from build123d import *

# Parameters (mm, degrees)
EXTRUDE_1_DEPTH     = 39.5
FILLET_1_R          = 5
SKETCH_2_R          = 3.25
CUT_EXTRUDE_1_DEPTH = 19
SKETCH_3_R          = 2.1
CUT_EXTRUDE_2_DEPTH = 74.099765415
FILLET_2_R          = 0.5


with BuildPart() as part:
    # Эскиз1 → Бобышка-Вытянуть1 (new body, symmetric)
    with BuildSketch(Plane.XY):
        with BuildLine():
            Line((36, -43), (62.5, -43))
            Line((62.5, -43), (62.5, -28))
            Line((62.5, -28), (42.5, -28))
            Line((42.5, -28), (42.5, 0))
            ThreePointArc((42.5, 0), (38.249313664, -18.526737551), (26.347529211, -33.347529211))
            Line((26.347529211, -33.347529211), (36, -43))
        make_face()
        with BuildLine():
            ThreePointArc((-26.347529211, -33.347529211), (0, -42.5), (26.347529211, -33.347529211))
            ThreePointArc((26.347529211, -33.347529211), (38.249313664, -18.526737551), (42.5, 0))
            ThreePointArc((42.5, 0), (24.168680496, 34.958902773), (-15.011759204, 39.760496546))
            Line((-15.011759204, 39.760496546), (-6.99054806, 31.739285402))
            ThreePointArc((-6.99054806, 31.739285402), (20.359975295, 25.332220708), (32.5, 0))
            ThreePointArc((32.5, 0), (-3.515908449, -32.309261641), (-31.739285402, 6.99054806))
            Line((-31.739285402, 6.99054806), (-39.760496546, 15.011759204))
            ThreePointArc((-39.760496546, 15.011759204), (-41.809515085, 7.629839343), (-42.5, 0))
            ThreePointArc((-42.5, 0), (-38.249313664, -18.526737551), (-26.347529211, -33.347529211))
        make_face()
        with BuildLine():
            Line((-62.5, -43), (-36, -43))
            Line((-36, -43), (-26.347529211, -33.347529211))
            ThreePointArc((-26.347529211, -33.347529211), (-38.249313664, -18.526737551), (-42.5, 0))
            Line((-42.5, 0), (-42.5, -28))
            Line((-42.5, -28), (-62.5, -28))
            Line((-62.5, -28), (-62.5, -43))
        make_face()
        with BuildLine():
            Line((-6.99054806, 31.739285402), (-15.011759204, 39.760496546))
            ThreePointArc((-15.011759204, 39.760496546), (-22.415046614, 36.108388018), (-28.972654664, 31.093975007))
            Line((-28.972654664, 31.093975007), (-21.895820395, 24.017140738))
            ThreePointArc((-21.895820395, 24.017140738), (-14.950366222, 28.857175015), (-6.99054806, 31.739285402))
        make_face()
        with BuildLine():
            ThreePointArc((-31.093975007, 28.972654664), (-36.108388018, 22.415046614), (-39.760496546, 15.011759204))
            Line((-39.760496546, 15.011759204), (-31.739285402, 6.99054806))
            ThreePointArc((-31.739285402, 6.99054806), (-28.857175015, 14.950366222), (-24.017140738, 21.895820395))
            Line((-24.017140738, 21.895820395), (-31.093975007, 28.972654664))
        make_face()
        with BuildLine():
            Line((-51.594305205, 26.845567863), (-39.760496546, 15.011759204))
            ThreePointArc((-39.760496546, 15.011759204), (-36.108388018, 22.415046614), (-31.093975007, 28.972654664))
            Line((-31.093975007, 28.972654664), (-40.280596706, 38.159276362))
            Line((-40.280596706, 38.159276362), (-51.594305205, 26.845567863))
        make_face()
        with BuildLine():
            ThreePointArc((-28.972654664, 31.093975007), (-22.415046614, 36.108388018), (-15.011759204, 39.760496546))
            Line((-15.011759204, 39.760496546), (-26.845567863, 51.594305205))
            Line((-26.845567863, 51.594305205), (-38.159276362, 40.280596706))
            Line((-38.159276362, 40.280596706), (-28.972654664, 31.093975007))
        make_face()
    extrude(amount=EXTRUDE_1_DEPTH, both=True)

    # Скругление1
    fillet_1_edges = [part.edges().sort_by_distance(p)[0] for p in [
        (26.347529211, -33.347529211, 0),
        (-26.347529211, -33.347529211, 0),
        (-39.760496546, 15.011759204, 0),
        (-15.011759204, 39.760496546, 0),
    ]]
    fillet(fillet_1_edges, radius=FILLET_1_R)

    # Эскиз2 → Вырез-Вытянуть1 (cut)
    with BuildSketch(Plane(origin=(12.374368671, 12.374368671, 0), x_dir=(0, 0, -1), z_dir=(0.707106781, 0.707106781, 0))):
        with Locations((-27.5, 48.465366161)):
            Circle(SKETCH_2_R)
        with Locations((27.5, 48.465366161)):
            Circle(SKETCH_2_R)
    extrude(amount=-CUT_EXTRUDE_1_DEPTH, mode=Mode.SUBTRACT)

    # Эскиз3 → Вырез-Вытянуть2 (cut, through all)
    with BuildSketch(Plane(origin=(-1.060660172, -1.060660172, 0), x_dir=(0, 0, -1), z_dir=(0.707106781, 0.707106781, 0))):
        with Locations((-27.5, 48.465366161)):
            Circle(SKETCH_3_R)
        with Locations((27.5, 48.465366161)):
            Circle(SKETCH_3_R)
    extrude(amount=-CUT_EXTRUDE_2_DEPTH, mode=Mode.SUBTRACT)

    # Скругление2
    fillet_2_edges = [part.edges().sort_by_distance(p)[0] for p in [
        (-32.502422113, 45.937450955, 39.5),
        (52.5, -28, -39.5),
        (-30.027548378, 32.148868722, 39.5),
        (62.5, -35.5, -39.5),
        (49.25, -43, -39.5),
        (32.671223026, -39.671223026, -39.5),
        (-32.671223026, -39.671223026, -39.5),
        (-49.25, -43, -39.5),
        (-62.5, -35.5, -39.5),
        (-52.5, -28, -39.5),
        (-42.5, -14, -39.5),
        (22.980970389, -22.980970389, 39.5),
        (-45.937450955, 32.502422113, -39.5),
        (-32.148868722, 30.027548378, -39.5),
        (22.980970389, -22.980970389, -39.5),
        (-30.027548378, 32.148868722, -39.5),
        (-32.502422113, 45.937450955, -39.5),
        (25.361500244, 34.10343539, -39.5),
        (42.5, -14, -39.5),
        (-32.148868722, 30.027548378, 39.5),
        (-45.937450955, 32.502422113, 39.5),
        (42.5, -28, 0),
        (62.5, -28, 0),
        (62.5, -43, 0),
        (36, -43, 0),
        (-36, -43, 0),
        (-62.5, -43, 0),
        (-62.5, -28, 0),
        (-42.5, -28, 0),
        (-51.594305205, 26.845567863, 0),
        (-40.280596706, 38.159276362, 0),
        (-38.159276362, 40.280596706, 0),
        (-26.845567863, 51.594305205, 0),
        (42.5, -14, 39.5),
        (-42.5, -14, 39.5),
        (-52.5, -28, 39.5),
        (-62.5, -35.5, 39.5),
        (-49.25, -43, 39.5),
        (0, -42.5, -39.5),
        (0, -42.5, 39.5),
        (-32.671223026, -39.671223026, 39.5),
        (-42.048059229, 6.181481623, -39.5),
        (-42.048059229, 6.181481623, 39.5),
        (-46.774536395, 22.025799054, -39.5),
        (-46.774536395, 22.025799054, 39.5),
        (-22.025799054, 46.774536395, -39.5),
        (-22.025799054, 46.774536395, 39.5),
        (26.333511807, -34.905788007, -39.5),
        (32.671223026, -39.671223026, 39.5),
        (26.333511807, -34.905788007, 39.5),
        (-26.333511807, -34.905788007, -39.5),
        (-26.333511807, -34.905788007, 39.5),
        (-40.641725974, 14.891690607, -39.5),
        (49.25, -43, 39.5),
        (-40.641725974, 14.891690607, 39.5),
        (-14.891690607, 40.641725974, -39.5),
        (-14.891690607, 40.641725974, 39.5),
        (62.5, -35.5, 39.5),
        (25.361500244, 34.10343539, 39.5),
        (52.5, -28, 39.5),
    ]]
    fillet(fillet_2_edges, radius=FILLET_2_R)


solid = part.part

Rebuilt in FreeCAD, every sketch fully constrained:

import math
import FreeCAD as App
import Part
import Sketcher

V = App.Vector
Q = App.Units.Quantity


def edges_at(feature, points):
    """Names of the edges that pass closest to the given points."""
    edges = feature.Shape.Edges
    near = lambda p: min(range(len(edges)), key=lambda i: edges[i].distToShape(Part.Vertex(*p))[0])
    return sorted({f"Edge{near(p) + 1}" for p in points})

doc = App.newDocument("Part")
params = doc.addObject("Spreadsheet::Sheet", "Params")
for row, (alias, value) in enumerate([
    ("sketch1_radius", "42.5 mm"),
    ("sketch1_radius2", "32.5 mm"),
    ("sketch1_width", "20 mm"),
    ("sketch1_height", "15 mm"),
    ("sketch1_height2", "28 mm"),
    ("pad1_length", "79 mm"),
    ("fillet_radius", "5 mm"),
    ("sketch2_diameter", "6.5 mm"),
    ("pocket1_length", "19 mm"),
    ("sketch3_diameter", "4.2 mm"),
    ("fillet2_radius", "0.5 mm"),
], start=1):
    params.set(f"A{row}", alias)
    params.set(f"B{row}", "=" + value)
    params.setAlias(f"B{row}", alias)

body = doc.addObject("PartDesign::Body", "Body")

sketch1 = body.newObject("Sketcher::SketchObject", "Sketch")
sketch1.AttachmentSupport = (doc.getObject("XY_Plane"), [""])
sketch1.MapMode = "FlatFace"
sketch1.addGeometry(Part.LineSegment(V(36, -43, 0), V(62, -43, 0)), False)
sketch1.addGeometry(Part.LineSegment(V(62, -43, 0), V(62, -28, 0)), False)
sketch1.addGeometry(Part.LineSegment(V(62, -28, 0), V(42, -28, 0)), False)
sketch1.addGeometry(Part.LineSegment(V(42, -28, 0), V(42, 0, 0)), False)
sketch1.addGeometry(Part.ArcOfCircle(Part.Circle(V(0, 0, 0), V(0, 0, 1), 42), math.radians(0), math.radians(111)), False)
sketch1.addGeometry(Part.LineSegment(V(-15, 40, 0), V(-27, 52, 0)), False)
sketch1.addGeometry(Part.LineSegment(V(-27, 52, 0), V(-38, 40, 0)), False)
sketch1.addGeometry(Part.LineSegment(V(-38, 40, 0), V(-29, 31, 0)), False)
sketch1.addGeometry(Part.LineSegment(V(-29, 31, 0), V(-22, 24, 0)), False)
sketch1.addGeometry(Part.ArcOfCircle(Part.Circle(V(0, 0, 0), V(0, 0, 1), 32), math.radians(102), math.radians(132)), False)
sketch1.addGeometry(Part.ArcOfCircle(Part.Circle(V(0, 0, 0), V(0, 0, 1), 32), math.radians(0), math.radians(102)), False)
sketch1.addGeometry(Part.ArcOfCircle(Part.Circle(V(0, 0, 0), V(0, 0, 1), 32), math.radians(168), math.radians(360)), False)
sketch1.addGeometry(Part.ArcOfCircle(Part.Circle(V(0, 0, 0), V(0, 0, 1), 32), math.radians(138), math.radians(168)), False)
sketch1.addGeometry(Part.LineSegment(V(-24, 22, 0), V(-31, 29, 0)), False)
sketch1.addGeometry(Part.LineSegment(V(-31, 29, 0), V(-40, 38, 0)), False)
sketch1.addGeometry(Part.LineSegment(V(-40, 38, 0), V(-52, 27, 0)), False)
sketch1.addGeometry(Part.LineSegment(V(-52, 27, 0), V(-40, 15, 0)), False)
sketch1.addGeometry(Part.ArcOfCircle(Part.Circle(V(0, 0, 0), V(0, 0, 1), 42), math.radians(159), math.radians(180)), False)
sketch1.addGeometry(Part.LineSegment(V(-42, 0, 0), V(-42, -28, 0)), False)
sketch1.addGeometry(Part.LineSegment(V(-42, -28, 0), V(-62, -28, 0)), False)
sketch1.addGeometry(Part.LineSegment(V(-62, -28, 0), V(-62, -43, 0)), False)
sketch1.addGeometry(Part.LineSegment(V(-62, -43, 0), V(-36, -43, 0)), False)
sketch1.addGeometry(Part.LineSegment(V(-36, -43, 0), V(-26, -33, 0)), False)
sketch1.addGeometry(Part.ArcOfCircle(Part.Circle(V(0, 0, 0), V(0, 0, 1), 42), math.radians(-128), math.radians(-52)), False)
sketch1.addGeometry(Part.LineSegment(V(26, -33, 0), V(36, -43, 0)), False)
sketch1.addConstraint(Sketcher.Constraint("Coincident", 0, 2, 1, 1))
sketch1.addConstraint(Sketcher.Constraint("Coincident", 1, 2, 2, 1))
sketch1.addConstraint(Sketcher.Constraint("Coincident", 2, 2, 3, 1))
sketch1.addConstraint(Sketcher.Constraint("Tangent", 3, 2, 4, 1))
sketch1.addConstraint(Sketcher.Constraint("Coincident", 4, 2, 5, 1))
sketch1.addConstraint(Sketcher.Constraint("Coincident", 5, 2, 6, 1))
sketch1.addConstraint(Sketcher.Constraint("Coincident", 6, 2, 7, 1))
sketch1.addConstraint(Sketcher.Constraint("Coincident", 7, 2, 8, 1))
sketch1.addConstraint(Sketcher.Constraint("Coincident", 8, 2, 9, 2))
sketch1.addConstraint(Sketcher.Constraint("Tangent", 9, 1, 10, 2))
sketch1.addConstraint(Sketcher.Constraint("Tangent", 10, 1, 11, 2))
sketch1.addConstraint(Sketcher.Constraint("Tangent", 11, 1, 12, 2))
sketch1.addConstraint(Sketcher.Constraint("Coincident", 12, 1, 13, 1))
sketch1.addConstraint(Sketcher.Constraint("Coincident", 13, 2, 14, 1))
sketch1.addConstraint(Sketcher.Constraint("Coincident", 14, 2, 15, 1))
sketch1.addConstraint(Sketcher.Constraint("Coincident", 15, 2, 16, 1))
sketch1.addConstraint(Sketcher.Constraint("Coincident", 16, 2, 17, 1))
sketch1.addConstraint(Sketcher.Constraint("Tangent", 17, 2, 18, 1))
sketch1.addConstraint(Sketcher.Constraint("Coincident", 18, 2, 19, 1))
sketch1.addConstraint(Sketcher.Constraint("Coincident", 19, 2, 20, 1))
sketch1.addConstraint(Sketcher.Constraint("Coincident", 20, 2, 21, 1))
sketch1.addConstraint(Sketcher.Constraint("Coincident", 21, 2, 22, 1))
sketch1.addConstraint(Sketcher.Constraint("Coincident", 22, 2, 23, 1))
sketch1.addConstraint(Sketcher.Constraint("Coincident", 23, 2, 24, 1))
sketch1.addConstraint(Sketcher.Constraint("Coincident", 24, 2, 0, 1))
sketch1.addConstraint(Sketcher.Constraint("Horizontal", 0))
sketch1.addConstraint(Sketcher.Constraint("Vertical", 1))
sketch1.addConstraint(Sketcher.Constraint("Horizontal", 2))
sketch1.addConstraint(Sketcher.Constraint("Vertical", 3))
sketch1.addConstraint(Sketcher.Constraint("Vertical", 18))
sketch1.addConstraint(Sketcher.Constraint("Horizontal", 19))
sketch1.addConstraint(Sketcher.Constraint("Vertical", 20))
sketch1.addConstraint(Sketcher.Constraint("Horizontal", 21))
sketch1.addConstraint(Sketcher.Constraint("Coincident", 4, 3, -1, 1))
sketch1.addConstraint(Sketcher.Constraint("Coincident", 9, 3, -1, 1))
sketch1.addConstraint(Sketcher.Constraint("Coincident", 11, 3, -1, 1))
sketch1.addConstraint(Sketcher.Constraint("Coincident", 17, 3, -1, 1))
sketch1.addConstraint(Sketcher.Constraint("Coincident", 23, 3, -1, 1))
sketch1.addConstraint(Sketcher.Constraint("Equal", 11, 12))
sketch1.addConstraint(Sketcher.Constraint("Equal", 4, 17))
sketch1.addConstraint(Sketcher.Constraint("Equal", 17, 23))
sketch1.addConstraint(Sketcher.Constraint("Symmetric", 1, 2, 19, 2, -2))
sketch1.addConstraint(Sketcher.Constraint("Symmetric", 21, 2, 24, 2, -2))
sketch1.addConstraint(Sketcher.Constraint("PointOnObject", 10, 1, -1))
sketch1.addConstraint(Sketcher.Constraint("Perpendicular", 5, 6))
sketch1.addConstraint(Sketcher.Constraint("Perpendicular", 6, 7))
sketch1.addConstraint(Sketcher.Constraint("Parallel", 7, 8))
sketch1.addConstraint(Sketcher.Constraint("Parallel", 8, 13))
sketch1.addConstraint(Sketcher.Constraint("Parallel", 13, 14))
sketch1.addConstraint(Sketcher.Constraint("Perpendicular", 14, 15))
sketch1.addConstraint(Sketcher.Constraint("Perpendicular", 15, 16))
sketch1.addConstraint(Sketcher.Constraint("Perpendicular", 16, 22))
sketch1.addConstraint(Sketcher.Constraint("Perpendicular", 22, 24))
sketch1.addConstraint(Sketcher.Constraint("Horizontal", 22, 2, 23, 2))
sketch1.addConstraint(Sketcher.Constraint("Equal", 8, 13))
sketch1.addConstraint(Sketcher.Constraint("Equal", 7, 14))
sketch1.addConstraint(Sketcher.Constraint("Equal", 6, 15))
sketch1.addConstraint(Sketcher.Constraint("Equal", 5, 16))
sketch1.addConstraint(Sketcher.Constraint("Radius", 4, Q("42.5 mm")))
sketch1.addConstraint(Sketcher.Constraint("Radius", 9, Q("32.5 mm")))
sketch1.addConstraint(Sketcher.Constraint("DistanceX", 2, 2, 2, 1, Q("20 mm")))
sketch1.addConstraint(Sketcher.Constraint("DistanceY", 1, 1, 1, 2, Q("15 mm")))
sketch1.addConstraint(Sketcher.Constraint("DistanceY", 3, 1, 3, 2, Q("28 mm")))
sketch1.addConstraint(Sketcher.Constraint("Distance", 6, Q("16 mm")))
sketch1.addConstraint(Sketcher.Constraint("DistanceX", 0, 1, 0, 2, Q("26.5 mm")))
sketch1.addConstraint(Sketcher.Constraint("DistanceY", 4, 2, 6, 2, Q("0.5201 mm")))
sketch1.addConstraint(Sketcher.Constraint("DistanceX", 6, 2, 13, 2, Q("7.065301 mm")))
sketch1.addConstraint(Sketcher.Constraint("DistanceX", 4, 2, -1, 1, Q("15.011759 mm")))
sketch1.addConstraint(Sketcher.Constraint("DistanceX", 9, 1, -1, 1, Q("6.990548 mm")))
sketch1.addConstraint(Sketcher.Constraint("DistanceY", -1, 1, 11, 1, Q("6.990548 mm")))
sketch1.setExpression("Constraints[58]", "Params.sketch1_radius")
sketch1.setExpression("Constraints[59]", "Params.sketch1_radius2")
sketch1.setExpression("Constraints[60]", "Params.sketch1_width")
sketch1.setExpression("Constraints[61]", "Params.sketch1_height")
sketch1.setExpression("Constraints[62]", "Params.sketch1_height2")
pad1 = body.newObject("PartDesign::Pad", "Pad")
pad1.Profile = sketch1
pad1.setExpression("Length", "Params.pad1_length")
pad1.Midplane = True
doc.recompute()

fillet = body.newObject("PartDesign::Fillet", "Fillet")
fillet.Base = (pad1, edges_at(pad1, [
    (26.348, -33.348, 0),
    (-26.348, -33.348, 0),
    (-39.76, 15.012, 0),
    (-15.012, 39.76, 0),
]))
fillet.setExpression("Radius", "Params.fillet_radius")

sketch2 = body.newObject("Sketcher::SketchObject", "Sketch001")
sketch2.Placement = App.Placement(V(12.374369, 12.374369, 0), App.Rotation(V(0, 0, -1), V(-0.707106781, 0.707106781, 0), V(0.707106781, 0.707106781, 0), "ZXY"))
sketch2.addGeometry(Part.Circle(V(-27.5, 48.5, 0), V(0, 0, 1), 3.2), False)
sketch2.addGeometry(Part.Circle(V(27.5, 48.5, 0), V(0, 0, 1), 3.2), False)
sketch2.addConstraint(Sketcher.Constraint("Equal", 0, 1))
sketch2.addConstraint(Sketcher.Constraint("Symmetric", 0, 3, 1, 3, -2))
sketch2.addConstraint(Sketcher.Constraint("Diameter", 0, Q("6.5 mm")))
sketch2.addConstraint(Sketcher.Constraint("DistanceX", 0, 3, 1, 3, Q("55 mm")))
sketch2.addConstraint(Sketcher.Constraint("DistanceY", -1, 1, 0, 3, Q("48.465366 mm")))
sketch2.setExpression("Constraints[2]", "Params.sketch2_diameter")
pocket1 = body.newObject("PartDesign::Pocket", "Pocket")
pocket1.Profile = sketch2
pocket1.setExpression("Length", "Params.pocket1_length")

sketch3 = body.newObject("Sketcher::SketchObject", "Sketch002")
sketch3.Placement = App.Placement(V(-1.06066, -1.06066, 0), App.Rotation(V(0, 0, -1), V(-0.707106781, 0.707106781, 0), V(0.707106781, 0.707106781, 0), "ZXY"))
sketch3.addGeometry(Part.Circle(V(-27.5, 48.5, 0), V(0, 0, 1), 2.1), False)
sketch3.addGeometry(Part.Circle(V(27.5, 48.5, 0), V(0, 0, 1), 2.1), False)
sketch3.addConstraint(Sketcher.Constraint("Equal", 0, 1))
sketch3.addConstraint(Sketcher.Constraint("Symmetric", 0, 3, 1, 3, -2))
sketch3.addConstraint(Sketcher.Constraint("Diameter", 0, Q("4.2 mm")))
sketch3.addConstraint(Sketcher.Constraint("DistanceX", 0, 3, 1, 3, Q("55 mm")))
sketch3.addConstraint(Sketcher.Constraint("DistanceY", -1, 1, 0, 3, Q("48.465366 mm")))
sketch3.setExpression("Constraints[2]", "Params.sketch3_diameter")
pocket2 = body.newObject("PartDesign::Pocket", "Pocket001")
pocket2.Profile = sketch3
pocket2.Type = "ThroughAll"
doc.recompute()

fillet2 = body.newObject("PartDesign::Fillet", "Fillet001")
fillet2.Base = (pocket2, edges_at(pocket2, [
    (-32.502, 45.937, 39.5),
    (52.5, -28, -39.5),
    (-33.566, 35.687, 39.5),
    (62.5, -35.5, -39.5),
    (49.25, -43, -39.5),
    (32.671, -39.671, -39.5),
    (-32.671, -39.671, -39.5),
    (-49.25, -43, -39.5),
    (-62.5, -35.5, -39.5),
    (-52.5, -28, -39.5),
    (-42.5, -14, -39.5),
    (-3.516, -32.309, 39.5),
    (-45.937, 32.502, -39.5),
    (-35.687, 33.566, -39.5),
    (-3.516, -32.309, -39.5),
    (-33.566, 35.687, -39.5),
    (-32.502, 45.937, -39.5),
    (25.362, 34.103, -39.5),
    (42.5, -14, -39.5),
    (-35.687, 33.566, 39.5),
    (-45.937, 32.502, 39.5),
    (42.5, -28, 0),
    (62.5, -28, 0),
    (62.5, -43, 0),
    (36, -43, 0),
    (-36, -43, 0),
    (-62.5, -43, 0),
    (-62.5, -28, 0),
    (-42.5, -28, 0),
    (-51.594, 26.846, 0),
    (-40.281, 38.159, 0),
    (-38.159, 40.281, 0),
    (-26.846, 51.594, 0),
    (42.5, -14, 39.5),
    (-42.5, -14, 39.5),
    (-52.5, -28, 39.5),
    (-62.5, -35.5, 39.5),
    (-49.25, -43, 39.5),
    (0, -42.5, -39.5),
    (0, -42.5, 39.5),
    (-32.671, -39.671, 39.5),
    (-42.048, 6.181, -39.5),
    (-42.048, 6.181, 39.5),
    (-46.775, 22.026, -39.5),
    (-46.775, 22.026, 39.5),
    (-22.026, 46.775, -39.5),
    (-22.026, 46.775, 39.5),
    (26.334, -34.906, -39.5),
    (32.671, -39.671, 39.5),
    (26.334, -34.906, 39.5),
    (-26.334, -34.906, -39.5),
    (-26.334, -34.906, 39.5),
    (-40.642, 14.892, -39.5),
    (49.25, -43, 39.5),
    (-40.642, 14.892, 39.5),
    (-14.892, 40.642, -39.5),
    (-14.892, 40.642, 39.5),
    (62.5, -35.5, 39.5),
    (25.362, 34.103, 39.5),
    (52.5, -28, 39.5),
]))
fillet2.setExpression("Radius", "Params.fillet2_radius")

doc.recompute()
